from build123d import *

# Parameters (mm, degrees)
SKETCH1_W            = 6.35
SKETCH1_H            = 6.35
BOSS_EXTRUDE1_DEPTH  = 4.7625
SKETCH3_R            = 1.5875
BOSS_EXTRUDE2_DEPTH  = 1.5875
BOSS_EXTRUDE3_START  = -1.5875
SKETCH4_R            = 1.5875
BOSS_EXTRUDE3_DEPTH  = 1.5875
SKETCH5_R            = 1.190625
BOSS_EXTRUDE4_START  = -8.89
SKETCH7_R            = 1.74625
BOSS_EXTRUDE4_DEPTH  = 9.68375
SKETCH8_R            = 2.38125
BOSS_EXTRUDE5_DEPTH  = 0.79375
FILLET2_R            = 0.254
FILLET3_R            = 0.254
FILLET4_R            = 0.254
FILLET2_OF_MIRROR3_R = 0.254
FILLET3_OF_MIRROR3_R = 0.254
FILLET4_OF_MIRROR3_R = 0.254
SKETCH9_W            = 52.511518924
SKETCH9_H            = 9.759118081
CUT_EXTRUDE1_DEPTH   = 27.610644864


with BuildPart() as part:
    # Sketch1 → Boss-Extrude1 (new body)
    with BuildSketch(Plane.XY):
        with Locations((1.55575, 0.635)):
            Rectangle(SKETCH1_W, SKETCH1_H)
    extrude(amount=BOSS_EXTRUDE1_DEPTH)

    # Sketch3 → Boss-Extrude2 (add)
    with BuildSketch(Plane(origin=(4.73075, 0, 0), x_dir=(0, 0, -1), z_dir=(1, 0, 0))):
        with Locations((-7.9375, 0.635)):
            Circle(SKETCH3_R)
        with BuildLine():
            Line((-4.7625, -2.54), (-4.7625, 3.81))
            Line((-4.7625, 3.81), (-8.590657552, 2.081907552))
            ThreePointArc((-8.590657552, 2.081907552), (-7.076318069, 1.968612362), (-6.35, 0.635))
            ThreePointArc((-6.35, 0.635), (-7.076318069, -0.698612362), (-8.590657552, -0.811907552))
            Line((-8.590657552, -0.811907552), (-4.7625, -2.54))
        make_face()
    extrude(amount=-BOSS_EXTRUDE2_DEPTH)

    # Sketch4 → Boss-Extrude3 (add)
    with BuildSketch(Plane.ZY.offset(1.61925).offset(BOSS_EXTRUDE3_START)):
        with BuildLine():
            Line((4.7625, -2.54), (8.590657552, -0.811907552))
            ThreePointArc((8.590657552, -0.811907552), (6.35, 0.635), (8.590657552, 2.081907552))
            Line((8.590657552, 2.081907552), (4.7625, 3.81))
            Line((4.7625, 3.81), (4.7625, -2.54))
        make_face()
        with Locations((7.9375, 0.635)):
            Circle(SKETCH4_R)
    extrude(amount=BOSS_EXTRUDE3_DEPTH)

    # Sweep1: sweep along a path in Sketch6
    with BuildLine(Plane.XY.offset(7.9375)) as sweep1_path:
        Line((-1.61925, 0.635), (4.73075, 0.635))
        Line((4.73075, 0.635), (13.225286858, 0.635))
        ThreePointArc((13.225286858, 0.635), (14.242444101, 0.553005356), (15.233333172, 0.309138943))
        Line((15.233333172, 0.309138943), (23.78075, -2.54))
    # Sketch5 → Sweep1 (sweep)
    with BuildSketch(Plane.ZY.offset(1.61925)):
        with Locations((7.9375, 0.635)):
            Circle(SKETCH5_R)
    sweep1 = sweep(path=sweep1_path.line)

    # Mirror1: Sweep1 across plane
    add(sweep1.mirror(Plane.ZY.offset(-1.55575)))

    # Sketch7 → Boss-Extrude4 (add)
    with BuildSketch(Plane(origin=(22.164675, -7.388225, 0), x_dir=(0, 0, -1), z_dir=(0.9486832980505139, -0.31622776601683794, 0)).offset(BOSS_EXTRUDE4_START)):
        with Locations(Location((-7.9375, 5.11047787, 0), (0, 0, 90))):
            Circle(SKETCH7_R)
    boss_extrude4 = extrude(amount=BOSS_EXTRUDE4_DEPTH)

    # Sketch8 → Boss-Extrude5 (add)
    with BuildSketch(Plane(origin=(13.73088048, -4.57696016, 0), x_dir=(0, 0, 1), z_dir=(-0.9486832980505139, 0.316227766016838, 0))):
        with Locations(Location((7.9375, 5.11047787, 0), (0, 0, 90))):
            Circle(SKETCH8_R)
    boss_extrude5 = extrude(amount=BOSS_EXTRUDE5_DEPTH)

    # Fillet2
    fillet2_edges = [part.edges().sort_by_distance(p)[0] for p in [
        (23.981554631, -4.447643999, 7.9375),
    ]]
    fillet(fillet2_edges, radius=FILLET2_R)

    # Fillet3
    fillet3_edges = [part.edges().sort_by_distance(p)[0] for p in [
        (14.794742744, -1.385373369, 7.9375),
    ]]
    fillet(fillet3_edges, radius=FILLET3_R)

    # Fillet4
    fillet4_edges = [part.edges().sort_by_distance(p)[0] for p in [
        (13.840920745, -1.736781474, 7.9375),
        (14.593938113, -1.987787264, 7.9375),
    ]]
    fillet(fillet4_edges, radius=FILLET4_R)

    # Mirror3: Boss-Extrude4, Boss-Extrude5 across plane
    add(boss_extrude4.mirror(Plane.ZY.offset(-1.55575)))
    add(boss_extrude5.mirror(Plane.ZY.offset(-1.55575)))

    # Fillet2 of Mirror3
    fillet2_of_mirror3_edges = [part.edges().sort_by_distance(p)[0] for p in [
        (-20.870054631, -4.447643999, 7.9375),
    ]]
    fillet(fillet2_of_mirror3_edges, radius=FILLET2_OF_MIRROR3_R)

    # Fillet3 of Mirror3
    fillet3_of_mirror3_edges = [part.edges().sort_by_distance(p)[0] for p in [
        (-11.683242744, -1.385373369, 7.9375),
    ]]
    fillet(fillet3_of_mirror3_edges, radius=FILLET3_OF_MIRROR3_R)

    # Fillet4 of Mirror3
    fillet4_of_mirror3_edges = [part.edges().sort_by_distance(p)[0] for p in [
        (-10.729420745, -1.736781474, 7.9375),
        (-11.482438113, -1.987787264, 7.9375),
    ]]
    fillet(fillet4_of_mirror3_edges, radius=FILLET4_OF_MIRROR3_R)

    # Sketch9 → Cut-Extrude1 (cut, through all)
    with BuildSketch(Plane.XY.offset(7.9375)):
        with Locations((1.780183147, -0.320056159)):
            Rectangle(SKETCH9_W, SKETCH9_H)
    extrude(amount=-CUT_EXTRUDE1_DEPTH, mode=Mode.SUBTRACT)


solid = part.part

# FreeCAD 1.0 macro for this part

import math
import FreeCAD as App
import Part
import Sketcher
from FreeCAD import Vector
Q = App.Units.Quantity


def edges_at(feature, points):
    """Names of the edges that pass closest to the given points."""
    edges = feature.Shape.Edges
    near = lambda p: min(range(len(edges)), key=lambda i: edges[i].distToShape(Part.Vertex(*p))[0])
    return sorted({f"Edge{near(p) + 1}" for p in points})

doc = App.newDocument("Part")
params = doc.addObject("Spreadsheet::Sheet", "Params")
for row, (alias, value) in enumerate([
    ("sketch1_width", "0.25 in"),
    ("pad1_length", "0.1875 in"),
    ("sketch2_radius", "0.0625 in"),
    ("sketch2_width", "0.25 in"),
    ("pad2_length", "0.0625 in"),
    ("sketch3_radius", "0.0625 in"),
    ("sketch3_width", "0.25 in"),
    ("pad3_length", "0.0625 in"),
    ("sketch4_diameter", "0.09375 in"),
    ("sketch5_radius", "0.25 in"),
    ("pad4_length", "9.68375 mm"),
    ("sketch7_diameter", "0.1875 in"),
    ("pad5_length", "0.03125 in"),
    ("fillet_radius", "0.01 in"),
    ("fillet2_radius", "0.01 in"),
    ("fillet3_radius", "0.01 in"),
    ("fillet4_radius", "0.01 in"),
    ("fillet5_radius", "0.01 in"),
    ("fillet6_radius", "0.01 in"),
], start=1):
    params.set(f"A{row}", alias)
    params.set(f"B{row}", "=" + value)
    params.setAlias(f"B{row}", alias)

body = doc.addObject("PartDesign::Body", "Body")

sketch1 = body.newObject("Sketcher::SketchObject", "Sketch")
sketch1.AttachmentSupport = (doc.getObject("XY_Plane"), [""])
sketch1.MapMode = "FlatFace"
sketch1.addGeometry([
    Part.LineSegment(Vector(-2, 4, 0), Vector(-2, -3, 0)),
    Part.LineSegment(Vector(-2, -3, 0), Vector(5, -3, 0)),
    Part.LineSegment(Vector(5, -3, 0), Vector(5, 4, 0)),
    Part.LineSegment(Vector(5, 4, 0), Vector(-2, 4, 0)),
], False)
sketch1.addConstraint([
    Sketcher.Constraint("Coincident", 0, 2, 1, 1),
    Sketcher.Constraint("Coincident", 1, 2, 2, 1),
    Sketcher.Constraint("Coincident", 2, 2, 3, 1),
    Sketcher.Constraint("Coincident", 3, 2, 0, 1),
    Sketcher.Constraint("Vertical", 0),
    Sketcher.Constraint("Horizontal", 1),
    Sketcher.Constraint("Vertical", 2),
    Sketcher.Constraint("Horizontal", 3),
    Sketcher.Constraint("Equal", 3, 0),
    Sketcher.Constraint("DistanceX", 1, 1, 1, 2, Q("0.25 in")),
    Sketcher.Constraint("DistanceY", 0, 2, -1, 1, Q("0.1 in")),
    Sketcher.Constraint("DistanceX", 0, 2, -1, 1, 1.61925),
])
sketch1.setExpression("Constraints[9]", "Params.sketch1_width")
pad1 = body.newObject("PartDesign::Pad", "Pad")
pad1.Profile = sketch1
pad1.setExpression("Length", "Params.pad1_length")

sketch2 = body.newObject("Sketcher::SketchObject", "Sketch001")
sketch2.AttachmentSupport = (doc.getObject("YZ_Plane"), [""])
sketch2.MapMode = "FlatFace"
sketch2.AttachmentOffset = App.Placement(Vector(0, 0, 4.73075), App.Rotation())
sketch2.addGeometry([
    Part.ArcOfCircle(Part.Circle(Vector(0.6, 7.9, 0), Vector(0, 0, 1), 1.6), math.radians(24), math.radians(156)),
    Part.LineSegment(Vector(-0.8, 8.6, 0), Vector(-2.5, 4.8, 0)),
    Part.LineSegment(Vector(-2.5, 4.8, 0), Vector(3.8, 4.8, 0)),
    Part.LineSegment(Vector(3.8, 4.8, 0), Vector(2.1, 8.6, 0)),
], False)
sketch2.addConstraint([
    Sketcher.Constraint("Tangent", 0, 2, 1, 1),
    Sketcher.Constraint("Coincident", 1, 2, 2, 1),
    Sketcher.Constraint("Coincident", 2, 2, 3, 1),
    Sketcher.Constraint("Tangent", 3, 2, 0, 1),
    Sketcher.Constraint("Horizontal", 2),
    Sketcher.Constraint("Horizontal", 0, 2, 3, 2),
    Sketcher.Constraint("Radius", 0, Q("0.0625 in")),
    Sketcher.Constraint("DistanceX", 2, 1, 2, 2, Q("0.25 in")),
    Sketcher.Constraint("DistanceX", 1, 2, -1, 1, Q("0.1 in")),
    Sketcher.Constraint("DistanceY", -1, 1, 0, 3, Q("0.3125 in")),
    Sketcher.Constraint("DistanceY", -1, 1, 1, 2, Q("0.1875 in")),
])
sketch2.setExpression("Constraints[6]", "Params.sketch2_radius")
sketch2.setExpression("Constraints[7]", "Params.sketch2_width")
pad2 = body.newObject("PartDesign::Pad", "Pad001")
pad2.Profile = sketch2
pad2.setExpression("Length", "Params.pad2_length")
pad2.Reversed = True

sketch3 = body.newObject("Sketcher::SketchObject", "Sketch002")
sketch3.AttachmentSupport = (doc.getObject("YZ_Plane"), [""])
sketch3.MapMode = "FlatFace"
sketch3.AttachmentOffset = App.Placement(Vector(0, 0, -0.03175), App.Rotation())
sketch3.addGeometry([
    Part.LineSegment(Vector(-2.5, 4.8, 0), Vector(-0.8, 8.6, 0)),
    Part.ArcOfCircle(Part.Circle(Vector(0.6, 7.9, 0), Vector(0, 0, 1), 1.6), math.radians(24), math.radians(156)),
    Part.LineSegment(Vector(2.1, 8.6, 0), Vector(3.8, 4.8, 0)),
    Part.LineSegment(Vector(3.8, 4.8, 0), Vector(-2.5, 4.8, 0)),
], False)
sketch3.addConstraint([
    Sketcher.Constraint("Tangent", 0, 2, 1, 2),
    Sketcher.Constraint("Tangent", 1, 1, 2, 1),
    Sketcher.Constraint("Coincident", 2, 2, 3, 1),
    Sketcher.Constraint("Coincident", 3, 2, 0, 1),
    Sketcher.Constraint("Horizontal", 3),
    Sketcher.Constraint("Horizontal", 0, 2, 1, 1),
    Sketcher.Constraint("Radius", 1, Q("0.0625 in")),
    Sketcher.Constraint("DistanceX", 3, 2, 3, 1, Q("0.25 in")),
    Sketcher.Constraint("DistanceX", 3, 2, -1, 1, Q("0.1 in")),
    Sketcher.Constraint("DistanceY", -1, 1, 1, 3, Q("0.3125 in")),
    Sketcher.Constraint("DistanceY", -1, 1, 2, 2, Q("0.1875 in")),
])
sketch3.setExpression("Constraints[6]", "Params.sketch3_radius")
sketch3.setExpression("Constraints[7]", "Params.sketch3_width")
pad3 = body.newObject("PartDesign::Pad", "Pad002")
pad3.Profile = sketch3
pad3.setExpression("Length", "Params.pad3_length")
pad3.Reversed = True

sketch4 = body.newObject("Sketcher::SketchObject", "Sketch003")
sketch4.AttachmentSupport = (doc.getObject("YZ_Plane"), [""])
sketch4.MapMode = "FlatFace"
sketch4.AttachmentOffset = App.Placement(Vector(0, 0, -1.61925), App.Rotation())
sketch4.addGeometry(Part.Circle(Vector(0.6, 7.9, 0), Vector(0, 0, 1), 1.2), False)
sketch4.addConstraint([
    Sketcher.Constraint("Diameter", 0, Q("0.09375 in")),
    Sketcher.Constraint("DistanceX", -1, 1, 0, 3, Q("0.025 in")),
    Sketcher.Constraint("DistanceY", -1, 1, 0, 3, Q("0.3125 in")),
])
sketch4.setExpression("Constraints[0]", "Params.sketch4_diameter")

sketch5 = body.newObject("Sketcher::SketchObject", "Sketch004")
sketch5.AttachmentSupport = (doc.getObject("XY_Plane"), [""])
sketch5.MapMode = "FlatFace"
sketch5.AttachmentOffset = App.Placement(Vector(0, 0, 0.3125 * 25.4), App.Rotation())
sketch5.addGeometry([
    Part.LineSegment(Vector(-1.6, 0.6, 0), Vector(13.2, 0.6, 0)),
    Part.ArcOfCircle(Part.Circle(Vector(13.2, -5.7, 0), Vector(0, 0, 1), 6.4), math.radians(71.57), math.radians(90)),
    Part.LineSegment(Vector(15.2, 0.3, 0), Vector(23.8, -2.5, 0)),
], False)
sketch5.addConstraint([
    Sketcher.Constraint("Tangent", 0, 2, 1, 2),
    Sketcher.Constraint("Tangent", 1, 1, 2, 1),
    Sketcher.Constraint("Horizontal", 0),
    Sketcher.Constraint("Radius", 1, Q("0.25 in")),
    Sketcher.Constraint("DistanceX", 0, 1, 2, 2, Q("1 in")),
    Sketcher.Constraint("DistanceY", 2, 2, -1, 1, Q("0.1 in")),
    Sketcher.Constraint("DistanceY", 1, 3, -1, 1, Q("0.225 in")),
    Sketcher.Constraint("Distance", 2, 9.009768),
    Sketcher.Constraint("DistanceX", 0, 1, -1, 1, 1.61925),
])
sketch5.setExpression("Constraints[3]", "Params.sketch5_radius")
doc.recompute()

additivepipe = body.newObject("PartDesign::AdditivePipe", "AdditivePipe")
additivepipe.Profile = sketch4
additivepipe.Spine = (sketch5, ["Edge1", "Edge2", "Edge3"])
doc.recompute()

datumplane = body.newObject("PartDesign::Plane", "DatumPlane")
datumplane.AttachmentSupport = (doc.getObject("YZ_Plane"), [""])
datumplane.MapMode = "FlatFace"
datumplane.AttachmentOffset = App.Placement(Vector(0, 0, 1.55575), App.Rotation())
mirrored = body.newObject("PartDesign::Mirrored", "Mirrored")
mirrored.Originals = [additivepipe]
mirrored.MirrorPlane = (datumplane, [""])
body.Tip = mirrored

sketch6 = body.newObject("Sketcher::SketchObject", "Sketch005")
sketch6.Placement = App.Placement(Vector(13.73088, -4.57696, 0), App.Rotation(Vector(0, 0, -1), Vector(0.316227766, 0.948683298, 0), Vector(0.948683298, -0.316227766, 0), "ZXY"))
sketch6.addGeometry(Part.Circle(Vector(-7.9, 5.1, 0), Vector(0, 0, 1), 1.7), False)
sketch6.addConstraint([
    Sketcher.Constraint("Diameter", 0, Q("0.1375 in")),
    Sketcher.Constraint("DistanceX", 0, 3, -1, 1, Q("0.3125 in")),
    Sketcher.Constraint("DistanceY", -1, 1, 0, 3, Q("0.2011999 in")),
])
pad4 = body.newObject("PartDesign::Pad", "Pad003")
pad4.Profile = sketch6
pad4.setExpression("Length", "Params.pad4_length")

sketch7 = body.newObject("Sketcher::SketchObject", "Sketch006")
sketch7.Placement = App.Placement(Vector(13.73088, -4.57696, 0), App.Rotation(Vector(0, 0, 1), Vector(0.316227766, 0.948683298, 0), Vector(-0.948683298, 0.316227766, 0), "ZXY"))
sketch7.addGeometry(Part.Circle(Vector(7.9, 5.1, 0), Vector(0, 0, 1), 2.4), False)
sketch7.addConstraint([
    Sketcher.Constraint("Diameter", 0, Q("0.1875 in")),
    Sketcher.Constraint("DistanceX", -1, 1, 0, 3, Q("0.3125 in")),
    Sketcher.Constraint("DistanceY", -1, 1, 0, 3, Q("0.2011999 in")),
])
sketch7.setExpression("Constraints[0]", "Params.sketch7_diameter")
pad5 = body.newObject("PartDesign::Pad", "Pad004")
pad5.Profile = sketch7
pad5.setExpression("Length", "Params.pad5_length")
doc.recompute()

fillet = body.newObject("PartDesign::Fillet", "Fillet")
fillet.Base = (pad5, edges_at(pad5, [(23.982, -4.448, 7.938)]))
fillet.setExpression("Radius", "Params.fillet_radius")
doc.recompute()

fillet2 = body.newObject("PartDesign::Fillet", "Fillet001")
fillet2.Base = (fillet, edges_at(fillet, [(14.795, -1.385, 7.938)]))
fillet2.setExpression("Radius", "Params.fillet2_radius")
doc.recompute()

fillet3 = body.newObject("PartDesign::Fillet", "Fillet002")
fillet3.Base = (fillet2, edges_at(fillet2, [(13.841, -1.737, 7.938), (14.594, -1.988, 7.938)]))
fillet3.setExpression("Radius", "Params.fillet3_radius")
doc.recompute()

datumplane2 = body.newObject("PartDesign::Plane", "DatumPlane001")
datumplane2.AttachmentSupport = (doc.getObject("YZ_Plane"), [""])
datumplane2.MapMode = "FlatFace"
datumplane2.AttachmentOffset = App.Placement(Vector(0, 0, 1.55575), App.Rotation())
mirrored2 = body.newObject("PartDesign::Mirrored", "Mirrored001")
mirrored2.Originals = [pad4, pad5]
mirrored2.MirrorPlane = (datumplane2, [""])
body.Tip = mirrored2
doc.recompute()

fillet4 = body.newObject("PartDesign::Fillet", "Fillet003")
fillet4.Base = (mirrored2, edges_at(mirrored2, [(-20.87, -4.448, 7.938)]))
fillet4.setExpression("Radius", "Params.fillet4_radius")
doc.recompute()

fillet5 = body.newObject("PartDesign::Fillet", "Fillet004")
fillet5.Base = (fillet4, edges_at(fillet4, [(-11.683, -1.385, 7.938)]))
fillet5.setExpression("Radius", "Params.fillet5_radius")
doc.recompute()

fillet6 = body.newObject("PartDesign::Fillet", "Fillet005")
fillet6.Base = (fillet5, edges_at(fillet5, [(-10.729, -1.737, 7.938), (-11.482, -1.988, 7.938)]))
fillet6.setExpression("Radius", "Params.fillet6_radius")

sketch8 = body.newObject("Sketcher::SketchObject", "Sketch007")
sketch8.AttachmentSupport = (doc.getObject("XY_Plane"), [""])
sketch8.MapMode = "FlatFace"
sketch8.AttachmentOffset = App.Placement(Vector(0, 0, 0.3125 * 25.4), App.Rotation())
sketch8.addGeometry([
    Part.LineSegment(Vector(-24, 5, 0), Vector(-24, -5, 0)),
    Part.LineSegment(Vector(-24, -5, 0), Vector(28, -5, 0)),
    Part.LineSegment(Vector(28, -5, 0), Vector(28, 5, 0)),
    Part.LineSegment(Vector(28, 5, 0), Vector(-24, 5, 0)),
], False)
sketch8.addConstraint([
    Sketcher.Constraint("Coincident", 0, 2, 1, 1),
    Sketcher.Constraint("Coincident", 1, 2, 2, 1),
    Sketcher.Constraint("Coincident", 2, 2, 3, 1),
    Sketcher.Constraint("Coincident", 3, 2, 0, 1),
    Sketcher.Constraint("Vertical", 0),
    Sketcher.Constraint("Horizontal", 1),
    Sketcher.Constraint("Vertical", 2),
    Sketcher.Constraint("Horizontal", 3),
    Sketcher.Constraint("DistanceX", 1, 1, 1, 2, 52.511519),
    Sketcher.Constraint("DistanceY", 0, 2, 0, 1, 9.759118),
    Sketcher.Constraint("DistanceX", 0, 2, -1, 1, 24.475576),
    Sketcher.Constraint("DistanceY", 0, 2, -1, 1, 5.199615),
])
pocket1 = body.newObject("PartDesign::Pocket", "Pocket")
pocket1.Profile = sketch8
pocket1.Type = "ThroughAll"

doc.recompute()
